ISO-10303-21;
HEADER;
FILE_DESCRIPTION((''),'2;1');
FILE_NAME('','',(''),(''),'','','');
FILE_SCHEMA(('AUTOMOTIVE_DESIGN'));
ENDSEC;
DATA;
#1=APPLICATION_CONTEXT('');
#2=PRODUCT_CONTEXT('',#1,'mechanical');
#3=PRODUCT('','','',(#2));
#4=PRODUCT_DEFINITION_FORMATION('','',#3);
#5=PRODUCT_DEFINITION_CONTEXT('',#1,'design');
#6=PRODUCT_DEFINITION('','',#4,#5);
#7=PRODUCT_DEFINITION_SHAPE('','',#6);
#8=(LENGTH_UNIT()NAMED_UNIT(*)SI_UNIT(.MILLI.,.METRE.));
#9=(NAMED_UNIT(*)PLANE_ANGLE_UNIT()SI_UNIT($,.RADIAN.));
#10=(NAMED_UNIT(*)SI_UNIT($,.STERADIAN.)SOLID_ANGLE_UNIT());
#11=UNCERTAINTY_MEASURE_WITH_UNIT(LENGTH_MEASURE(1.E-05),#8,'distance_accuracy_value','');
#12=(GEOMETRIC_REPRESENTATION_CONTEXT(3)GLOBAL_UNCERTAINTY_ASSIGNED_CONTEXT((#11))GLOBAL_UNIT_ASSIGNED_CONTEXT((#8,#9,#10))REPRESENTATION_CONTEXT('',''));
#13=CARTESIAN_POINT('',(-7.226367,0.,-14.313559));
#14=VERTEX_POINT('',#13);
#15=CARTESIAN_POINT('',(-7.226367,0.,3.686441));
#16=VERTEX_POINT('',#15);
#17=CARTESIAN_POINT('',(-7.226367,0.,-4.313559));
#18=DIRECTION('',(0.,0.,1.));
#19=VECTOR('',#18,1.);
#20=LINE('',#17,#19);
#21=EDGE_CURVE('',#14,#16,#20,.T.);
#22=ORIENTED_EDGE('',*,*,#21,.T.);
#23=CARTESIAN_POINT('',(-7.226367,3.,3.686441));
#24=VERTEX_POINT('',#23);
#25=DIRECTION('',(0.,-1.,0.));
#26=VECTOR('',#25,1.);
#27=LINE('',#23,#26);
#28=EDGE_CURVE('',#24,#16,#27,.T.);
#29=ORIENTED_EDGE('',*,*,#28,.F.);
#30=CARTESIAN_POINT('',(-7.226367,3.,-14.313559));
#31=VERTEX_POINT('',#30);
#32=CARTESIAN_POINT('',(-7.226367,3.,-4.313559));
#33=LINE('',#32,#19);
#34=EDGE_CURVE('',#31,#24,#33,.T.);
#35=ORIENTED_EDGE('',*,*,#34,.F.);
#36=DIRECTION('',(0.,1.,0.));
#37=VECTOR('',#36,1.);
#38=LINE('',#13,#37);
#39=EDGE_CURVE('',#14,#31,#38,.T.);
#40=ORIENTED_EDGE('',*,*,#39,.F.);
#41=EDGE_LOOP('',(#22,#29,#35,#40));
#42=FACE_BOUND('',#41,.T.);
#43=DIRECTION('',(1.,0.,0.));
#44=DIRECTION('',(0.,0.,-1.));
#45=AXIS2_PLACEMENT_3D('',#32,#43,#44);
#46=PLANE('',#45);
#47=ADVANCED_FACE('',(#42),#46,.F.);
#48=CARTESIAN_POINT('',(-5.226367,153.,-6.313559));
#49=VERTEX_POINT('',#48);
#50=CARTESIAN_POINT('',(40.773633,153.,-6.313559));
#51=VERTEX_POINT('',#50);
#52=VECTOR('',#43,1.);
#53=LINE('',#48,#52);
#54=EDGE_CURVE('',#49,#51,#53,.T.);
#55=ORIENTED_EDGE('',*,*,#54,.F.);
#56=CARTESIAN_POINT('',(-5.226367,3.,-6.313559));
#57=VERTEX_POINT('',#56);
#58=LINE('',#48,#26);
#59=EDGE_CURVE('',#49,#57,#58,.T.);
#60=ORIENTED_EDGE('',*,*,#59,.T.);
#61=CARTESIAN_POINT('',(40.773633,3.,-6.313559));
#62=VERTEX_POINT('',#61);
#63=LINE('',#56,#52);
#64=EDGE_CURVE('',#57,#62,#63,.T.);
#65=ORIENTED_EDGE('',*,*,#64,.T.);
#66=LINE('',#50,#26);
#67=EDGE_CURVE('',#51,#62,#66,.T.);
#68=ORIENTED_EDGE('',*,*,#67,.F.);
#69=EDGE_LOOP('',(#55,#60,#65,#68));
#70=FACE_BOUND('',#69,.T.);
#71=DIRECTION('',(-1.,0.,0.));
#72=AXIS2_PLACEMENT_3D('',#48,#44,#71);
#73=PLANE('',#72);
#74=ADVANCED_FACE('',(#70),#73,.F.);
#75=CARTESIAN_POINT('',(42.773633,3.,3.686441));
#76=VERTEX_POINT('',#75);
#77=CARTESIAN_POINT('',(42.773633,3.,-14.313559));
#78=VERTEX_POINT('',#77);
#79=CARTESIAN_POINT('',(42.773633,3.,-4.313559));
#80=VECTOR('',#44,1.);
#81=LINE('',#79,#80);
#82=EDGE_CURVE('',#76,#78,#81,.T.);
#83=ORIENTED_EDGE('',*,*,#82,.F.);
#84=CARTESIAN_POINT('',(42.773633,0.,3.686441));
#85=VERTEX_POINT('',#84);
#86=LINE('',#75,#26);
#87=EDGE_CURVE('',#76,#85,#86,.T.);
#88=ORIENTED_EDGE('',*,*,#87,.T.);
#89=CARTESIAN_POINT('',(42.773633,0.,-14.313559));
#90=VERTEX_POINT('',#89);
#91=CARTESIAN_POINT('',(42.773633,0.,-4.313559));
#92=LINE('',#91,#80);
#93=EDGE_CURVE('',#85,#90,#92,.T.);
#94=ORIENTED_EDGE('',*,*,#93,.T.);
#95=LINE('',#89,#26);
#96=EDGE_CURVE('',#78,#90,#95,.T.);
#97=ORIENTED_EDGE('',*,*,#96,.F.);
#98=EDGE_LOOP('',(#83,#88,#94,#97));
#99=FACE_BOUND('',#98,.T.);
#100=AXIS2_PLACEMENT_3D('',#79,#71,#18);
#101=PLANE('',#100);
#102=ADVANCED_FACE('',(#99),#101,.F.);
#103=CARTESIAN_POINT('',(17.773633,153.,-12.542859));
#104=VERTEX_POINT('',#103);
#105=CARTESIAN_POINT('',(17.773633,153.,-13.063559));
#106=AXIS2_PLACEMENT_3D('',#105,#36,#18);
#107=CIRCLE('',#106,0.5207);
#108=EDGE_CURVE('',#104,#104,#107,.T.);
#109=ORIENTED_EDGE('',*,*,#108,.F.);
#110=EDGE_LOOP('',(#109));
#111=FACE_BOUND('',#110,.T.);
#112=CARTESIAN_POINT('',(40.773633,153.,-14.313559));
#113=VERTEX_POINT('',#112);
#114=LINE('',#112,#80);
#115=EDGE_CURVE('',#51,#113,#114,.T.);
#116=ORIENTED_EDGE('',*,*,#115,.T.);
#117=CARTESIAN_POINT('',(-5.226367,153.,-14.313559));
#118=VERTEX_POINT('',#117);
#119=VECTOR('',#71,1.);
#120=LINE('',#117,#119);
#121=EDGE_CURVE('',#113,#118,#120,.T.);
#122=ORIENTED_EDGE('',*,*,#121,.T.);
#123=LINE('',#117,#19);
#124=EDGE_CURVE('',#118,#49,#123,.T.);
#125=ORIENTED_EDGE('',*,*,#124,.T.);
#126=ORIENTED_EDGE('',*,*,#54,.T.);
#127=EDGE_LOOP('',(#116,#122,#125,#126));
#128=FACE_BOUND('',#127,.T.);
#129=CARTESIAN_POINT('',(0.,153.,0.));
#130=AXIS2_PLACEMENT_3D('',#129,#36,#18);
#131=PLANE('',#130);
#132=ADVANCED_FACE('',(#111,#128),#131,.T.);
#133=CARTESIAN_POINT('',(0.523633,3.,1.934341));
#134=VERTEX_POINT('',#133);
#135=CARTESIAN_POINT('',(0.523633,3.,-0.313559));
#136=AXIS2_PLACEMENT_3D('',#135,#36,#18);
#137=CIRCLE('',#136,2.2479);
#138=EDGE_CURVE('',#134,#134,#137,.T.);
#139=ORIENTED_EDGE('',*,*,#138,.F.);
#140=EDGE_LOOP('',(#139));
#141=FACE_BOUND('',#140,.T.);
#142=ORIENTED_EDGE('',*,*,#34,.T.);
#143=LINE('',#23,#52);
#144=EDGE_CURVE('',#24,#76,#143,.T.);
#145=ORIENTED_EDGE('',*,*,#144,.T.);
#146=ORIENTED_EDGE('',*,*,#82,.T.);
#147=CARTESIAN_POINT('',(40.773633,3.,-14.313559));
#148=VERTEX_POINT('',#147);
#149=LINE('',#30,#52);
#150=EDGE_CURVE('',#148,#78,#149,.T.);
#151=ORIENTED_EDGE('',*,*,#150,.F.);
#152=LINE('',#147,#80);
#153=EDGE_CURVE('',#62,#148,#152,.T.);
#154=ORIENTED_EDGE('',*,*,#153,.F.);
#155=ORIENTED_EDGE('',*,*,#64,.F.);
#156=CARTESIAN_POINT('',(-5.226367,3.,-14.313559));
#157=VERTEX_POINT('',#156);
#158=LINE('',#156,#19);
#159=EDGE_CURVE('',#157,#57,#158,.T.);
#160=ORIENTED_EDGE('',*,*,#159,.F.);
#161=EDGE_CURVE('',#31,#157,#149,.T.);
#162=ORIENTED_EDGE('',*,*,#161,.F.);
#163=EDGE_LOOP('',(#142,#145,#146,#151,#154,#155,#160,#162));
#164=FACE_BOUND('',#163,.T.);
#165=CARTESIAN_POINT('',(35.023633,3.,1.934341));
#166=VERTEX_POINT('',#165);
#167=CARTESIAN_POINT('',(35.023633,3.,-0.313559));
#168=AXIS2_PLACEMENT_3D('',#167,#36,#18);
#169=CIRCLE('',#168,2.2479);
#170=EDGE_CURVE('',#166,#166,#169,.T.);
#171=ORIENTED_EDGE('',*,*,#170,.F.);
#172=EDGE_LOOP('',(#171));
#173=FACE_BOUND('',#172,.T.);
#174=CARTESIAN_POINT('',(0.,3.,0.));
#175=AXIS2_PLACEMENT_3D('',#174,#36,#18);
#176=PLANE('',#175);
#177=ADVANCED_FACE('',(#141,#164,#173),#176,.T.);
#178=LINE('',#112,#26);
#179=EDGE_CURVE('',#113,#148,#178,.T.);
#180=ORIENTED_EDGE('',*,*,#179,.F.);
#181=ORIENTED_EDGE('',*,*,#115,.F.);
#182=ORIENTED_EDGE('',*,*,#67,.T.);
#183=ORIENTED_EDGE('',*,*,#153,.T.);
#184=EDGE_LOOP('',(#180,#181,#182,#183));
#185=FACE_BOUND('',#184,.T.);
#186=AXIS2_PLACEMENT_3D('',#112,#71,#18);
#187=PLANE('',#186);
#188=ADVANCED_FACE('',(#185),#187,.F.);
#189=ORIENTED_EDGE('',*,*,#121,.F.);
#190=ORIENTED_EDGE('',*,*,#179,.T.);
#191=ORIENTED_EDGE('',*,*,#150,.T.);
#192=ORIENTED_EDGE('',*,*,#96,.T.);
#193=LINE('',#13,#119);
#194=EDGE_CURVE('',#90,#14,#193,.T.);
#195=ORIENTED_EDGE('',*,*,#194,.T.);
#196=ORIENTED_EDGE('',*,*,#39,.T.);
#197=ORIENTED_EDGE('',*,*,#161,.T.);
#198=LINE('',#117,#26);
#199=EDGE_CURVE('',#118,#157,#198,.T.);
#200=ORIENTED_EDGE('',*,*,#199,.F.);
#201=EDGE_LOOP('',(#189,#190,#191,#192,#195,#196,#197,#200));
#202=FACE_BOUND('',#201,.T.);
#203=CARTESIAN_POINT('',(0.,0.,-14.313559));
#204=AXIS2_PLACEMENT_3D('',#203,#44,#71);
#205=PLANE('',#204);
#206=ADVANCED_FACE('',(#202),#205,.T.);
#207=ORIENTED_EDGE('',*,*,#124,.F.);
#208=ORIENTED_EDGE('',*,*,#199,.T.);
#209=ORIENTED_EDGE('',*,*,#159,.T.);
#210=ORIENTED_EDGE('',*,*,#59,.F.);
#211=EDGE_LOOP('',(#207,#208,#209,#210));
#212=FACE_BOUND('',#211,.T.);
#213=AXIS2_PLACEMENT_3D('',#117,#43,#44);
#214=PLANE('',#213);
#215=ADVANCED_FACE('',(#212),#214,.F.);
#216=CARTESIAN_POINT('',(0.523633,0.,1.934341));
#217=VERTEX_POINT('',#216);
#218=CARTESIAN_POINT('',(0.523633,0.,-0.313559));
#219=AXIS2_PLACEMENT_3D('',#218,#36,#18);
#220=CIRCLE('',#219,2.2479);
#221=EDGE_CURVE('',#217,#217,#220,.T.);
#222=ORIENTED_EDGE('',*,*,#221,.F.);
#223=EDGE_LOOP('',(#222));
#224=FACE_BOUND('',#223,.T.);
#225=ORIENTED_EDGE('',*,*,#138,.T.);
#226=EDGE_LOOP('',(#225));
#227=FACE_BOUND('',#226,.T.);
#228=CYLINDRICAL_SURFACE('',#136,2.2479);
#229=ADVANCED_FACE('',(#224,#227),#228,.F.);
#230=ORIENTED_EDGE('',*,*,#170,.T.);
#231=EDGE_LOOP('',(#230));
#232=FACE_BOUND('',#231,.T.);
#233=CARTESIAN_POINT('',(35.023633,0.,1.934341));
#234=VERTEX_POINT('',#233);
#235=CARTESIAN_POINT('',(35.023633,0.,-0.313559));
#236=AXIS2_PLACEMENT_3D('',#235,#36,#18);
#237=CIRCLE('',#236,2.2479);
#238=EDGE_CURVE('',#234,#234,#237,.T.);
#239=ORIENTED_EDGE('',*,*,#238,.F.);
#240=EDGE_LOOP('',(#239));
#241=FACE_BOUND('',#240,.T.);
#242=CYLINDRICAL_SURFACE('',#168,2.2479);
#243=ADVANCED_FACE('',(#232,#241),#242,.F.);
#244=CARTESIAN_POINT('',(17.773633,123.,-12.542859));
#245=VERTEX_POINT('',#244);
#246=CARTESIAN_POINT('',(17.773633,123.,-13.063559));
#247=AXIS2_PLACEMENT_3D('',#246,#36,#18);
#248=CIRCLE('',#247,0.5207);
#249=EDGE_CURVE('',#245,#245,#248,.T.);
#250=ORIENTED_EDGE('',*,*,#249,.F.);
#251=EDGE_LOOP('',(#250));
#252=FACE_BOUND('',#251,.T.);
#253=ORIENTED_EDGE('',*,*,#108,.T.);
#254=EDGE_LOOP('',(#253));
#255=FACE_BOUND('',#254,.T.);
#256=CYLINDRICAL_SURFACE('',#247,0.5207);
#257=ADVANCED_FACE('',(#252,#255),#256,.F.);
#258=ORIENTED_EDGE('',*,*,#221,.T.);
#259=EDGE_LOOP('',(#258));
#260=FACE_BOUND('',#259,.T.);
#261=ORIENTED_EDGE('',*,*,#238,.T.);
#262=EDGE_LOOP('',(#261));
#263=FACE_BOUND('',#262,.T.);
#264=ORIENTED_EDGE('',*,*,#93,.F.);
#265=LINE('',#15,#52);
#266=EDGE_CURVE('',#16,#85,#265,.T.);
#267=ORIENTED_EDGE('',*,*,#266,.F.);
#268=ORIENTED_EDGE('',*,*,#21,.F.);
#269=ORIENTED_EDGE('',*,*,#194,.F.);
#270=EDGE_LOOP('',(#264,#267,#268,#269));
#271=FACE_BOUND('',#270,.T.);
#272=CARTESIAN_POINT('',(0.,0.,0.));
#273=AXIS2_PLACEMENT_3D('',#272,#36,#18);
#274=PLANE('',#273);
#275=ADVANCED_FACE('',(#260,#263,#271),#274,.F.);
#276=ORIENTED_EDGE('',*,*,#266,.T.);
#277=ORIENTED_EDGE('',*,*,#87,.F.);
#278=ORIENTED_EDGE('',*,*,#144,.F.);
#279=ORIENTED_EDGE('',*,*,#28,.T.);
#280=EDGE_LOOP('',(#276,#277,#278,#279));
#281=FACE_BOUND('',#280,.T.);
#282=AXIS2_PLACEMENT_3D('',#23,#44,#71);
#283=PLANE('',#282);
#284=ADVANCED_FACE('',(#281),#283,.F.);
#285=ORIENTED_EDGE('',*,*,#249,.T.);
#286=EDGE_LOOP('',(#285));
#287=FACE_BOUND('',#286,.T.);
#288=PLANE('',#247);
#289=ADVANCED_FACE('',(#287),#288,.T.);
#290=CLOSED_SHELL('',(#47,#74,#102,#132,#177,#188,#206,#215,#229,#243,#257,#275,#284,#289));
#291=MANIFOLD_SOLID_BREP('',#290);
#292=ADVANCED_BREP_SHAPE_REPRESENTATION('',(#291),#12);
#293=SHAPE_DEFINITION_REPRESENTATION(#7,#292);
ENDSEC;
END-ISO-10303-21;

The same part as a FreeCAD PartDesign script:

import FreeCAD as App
import Part
import Sketcher

V = App.Vector
Q = App.Units.Quantity

doc = App.newDocument("Part")
body = doc.addObject("PartDesign::Body", "Body")

# Sketch on XZ plane
sketch1 = body.newObject("Sketcher::SketchObject", "Sketch")
sketch1.AttachmentSupport = (doc.getObject("XZ_Plane"), [""])
sketch1.MapMode = "FlatFace"
sketch1.addGeometry([
    Part.LineSegment(V(-7, -4, 0), V(-7, 4, 0)),
    Part.LineSegment(V(-7, 4, 0), V(43, 4, 0)),
    Part.LineSegment(V(43, 4, 0), V(43, -4, 0)),
    Part.LineSegment(V(43, -4, 0), V(-7, -4, 0)),
], False)
sketch1.addConstraint([
    Sketcher.Constraint("Coincident", 0, 2, 1, 1),
    Sketcher.Constraint("Coincident", 1, 2, 2, 1),
    Sketcher.Constraint("Coincident", 2, 2, 3, 1),
    Sketcher.Constraint("Coincident", 3, 2, 0, 1),
    Sketcher.Constraint("Vertical", 0),
    Sketcher.Constraint("Horizontal", 1),
    Sketcher.Constraint("Vertical", 2),
    Sketcher.Constraint("Horizontal", 3),
    Sketcher.Constraint("DistanceX", 1, 1, 1, 2, Q("50 mm")),
    Sketcher.Constraint("DistanceY", 0, 1, 0, 2, Q("8 mm")),
    Sketcher.Constraint("DistanceY", -1, 1, 0, 2, Q("3.686441 mm")),
    Sketcher.Constraint("DistanceX", 0, 2, -1, 1, Q("7.226367 mm")),
])
pad1 = body.newObject("PartDesign::Pad", "Pad")
pad1.Profile = sketch1
pad1.Length = 3
pad1.Reversed = True

# Sketch on XZ plane
sketch2 = body.newObject("Sketcher::SketchObject", "Sketch001")
sketch2.AttachmentSupport = (doc.getObject("XZ_Plane"), [""])
sketch2.MapMode = "FlatFace"
sketch2.AttachmentOffset = App.Placement(V(0, 0, -3), App.Rotation())
sketch2.addGeometry([
    Part.Circle(V(0.5, -0.3, 0), V(0, 0, 1), 2.2),
    Part.Circle(V(35, -0.3, 0), V(0, 0, 1), 2.2),
], False)
sketch2.addConstraint([
    Sketcher.Constraint("Equal", 0, 1),
    Sketcher.Constraint("Horizontal", 0, 3, 1, 3),
    Sketcher.Constraint("Diameter", 0, Q("4.4958 mm")),
    Sketcher.Constraint("DistanceX", 0, 3, 1, 3, Q("34.5 mm")),
    Sketcher.Constraint("DistanceY", 0, 3, -1, 1, Q("0.313559 mm")),
    Sketcher.Constraint("DistanceX", -1, 1, 0, 3, Q("0.523633 mm")),
])
doc.recompute()
hole = body.newObject("PartDesign::Hole", "Hole")
hole.Profile = sketch2
hole.ThreadType = "None"
hole.Diameter = 4.4958
hole.DepthType = "Dimension"
hole.Depth = 17
hole.DrillPoint = "Angled"
hole.DrillPointAngle = 118
hole.Reversed = True

# Sketch on XY plane
sketch3 = body.newObject("Sketcher::SketchObject", "Sketch002")
sketch3.AttachmentSupport = (doc.getObject("XY_Plane"), [""])
sketch3.MapMode = "FlatFace"
sketch3.AttachmentOffset = App.Placement(V(0, 0, -4.313559), App.Rotation())
sketch3.addGeometry([
    Part.LineSegment(V(42.8, 3, 0), V(42.8, 0, 0)),
    Part.LineSegment(V(42.8, 0, 0), V(-7.2, 0, 0)),
    Part.LineSegment(V(-7.2, 0, 0), V(-7.2, 3, 0)),
    Part.LineSegment(V(-7.2, 3, 0), V(42.8, 3, 0)),
], False)
sketch3.addConstraint([
    Sketcher.Constraint("Coincident", 0, 2, 1, 1),
    Sketcher.Constraint("Coincident", 1, 2, 2, 1),
    Sketcher.Constraint("Coincident", 2, 2, 3, 1),
    Sketcher.Constraint("Coincident", 3, 2, 0, 1),
    Sketcher.Constraint("Vertical", 0),
    Sketcher.Constraint("Horizontal", 1),
    Sketcher.Constraint("Vertical", 2),
    Sketcher.Constraint("Horizontal", 3),
    Sketcher.Constraint("PointOnObject", 0, 2, -1),
    Sketcher.Constraint("DistanceX", 1, 2, 1, 1, Q("50 mm")),
    Sketcher.Constraint("DistanceY", 0, 2, 0, 1, Q("3 mm")),
    Sketcher.Constraint("DistanceX", -1, 1, 0, 2, Q("42.773633 mm")),
])
pad2 = body.newObject("PartDesign::Pad", "Pad001")
pad2.Profile = sketch3
pad2.Length = 10
pad2.Reversed = True

# Sketch on XZ plane
sketch4 = body.newObject("Sketcher::SketchObject", "Sketch003")
sketch4.AttachmentSupport = (doc.getObject("XZ_Plane"), [""])
sketch4.MapMode = "FlatFace"
sketch4.AttachmentOffset = App.Placement(V(0, 0, -3), App.Rotation())
sketch4.addGeometry([
    Part.LineSegment(V(-5, -14, 0), V(-5, -6, 0)),
    Part.LineSegment(V(-5, -6, 0), V(41, -6, 0)),
    Part.LineSegment(V(41, -6, 0), V(41, -14, 0)),
    Part.LineSegment(V(41, -14, 0), V(-5, -14, 0)),
], False)
sketch4.addConstraint([
    Sketcher.Constraint("Coincident", 0, 2, 1, 1),
    Sketcher.Constraint("Coincident", 1, 2, 2, 1),
    Sketcher.Constraint("Coincident", 2, 2, 3, 1),
    Sketcher.Constraint("Coincident", 3, 2, 0, 1),
    Sketcher.Constraint("Vertical", 0),
    Sketcher.Constraint("Horizontal", 1),
    Sketcher.Constraint("Vertical", 2),
    Sketcher.Constraint("Horizontal", 3),
    Sketcher.Constraint("DistanceX", 1, 1, 1, 2, Q("46 mm")),
    Sketcher.Constraint("DistanceY", 0, 1, 0, 2, Q("8 mm")),
    Sketcher.Constraint("DistanceY", 0, 2, -1, 1, Q("6.313559 mm")),
    Sketcher.Constraint("DistanceX", 0, 2, -1, 1, Q("5.226367 mm")),
])
pad3 = body.newObject("PartDesign::Pad", "Pad002")
pad3.Profile = sketch4
pad3.Length = 150
pad3.Reversed = True

# Sketch on XZ plane
sketch5 = body.newObject("Sketcher::SketchObject", "Sketch004")
sketch5.AttachmentSupport = (doc.getObject("XZ_Plane"), [""])
sketch5.MapMode = "FlatFace"
sketch5.AttachmentOffset = App.Placement(V(0, 0, -153), App.Rotation())
sketch5.addGeometry(Part.Circle(V(17.8, -13.1, 0), V(0, 0, 1), 0.5), False)
sketch5.addConstraint([
    Sketcher.Constraint("Diameter", 0, Q("1.0414 mm")),
    Sketcher.Constraint("DistanceY", 0, 3, -1, 1, Q("13.063559 mm")),
    Sketcher.Constraint("DistanceX", -1, 1, 0, 3, Q("17.773633 mm")),
])
pocket1 = body.newObject("PartDesign::Pocket", "Pocket")
pocket1.Profile = sketch5
pocket1.Length = 30
pocket1.Reversed = True

doc.recompute()
